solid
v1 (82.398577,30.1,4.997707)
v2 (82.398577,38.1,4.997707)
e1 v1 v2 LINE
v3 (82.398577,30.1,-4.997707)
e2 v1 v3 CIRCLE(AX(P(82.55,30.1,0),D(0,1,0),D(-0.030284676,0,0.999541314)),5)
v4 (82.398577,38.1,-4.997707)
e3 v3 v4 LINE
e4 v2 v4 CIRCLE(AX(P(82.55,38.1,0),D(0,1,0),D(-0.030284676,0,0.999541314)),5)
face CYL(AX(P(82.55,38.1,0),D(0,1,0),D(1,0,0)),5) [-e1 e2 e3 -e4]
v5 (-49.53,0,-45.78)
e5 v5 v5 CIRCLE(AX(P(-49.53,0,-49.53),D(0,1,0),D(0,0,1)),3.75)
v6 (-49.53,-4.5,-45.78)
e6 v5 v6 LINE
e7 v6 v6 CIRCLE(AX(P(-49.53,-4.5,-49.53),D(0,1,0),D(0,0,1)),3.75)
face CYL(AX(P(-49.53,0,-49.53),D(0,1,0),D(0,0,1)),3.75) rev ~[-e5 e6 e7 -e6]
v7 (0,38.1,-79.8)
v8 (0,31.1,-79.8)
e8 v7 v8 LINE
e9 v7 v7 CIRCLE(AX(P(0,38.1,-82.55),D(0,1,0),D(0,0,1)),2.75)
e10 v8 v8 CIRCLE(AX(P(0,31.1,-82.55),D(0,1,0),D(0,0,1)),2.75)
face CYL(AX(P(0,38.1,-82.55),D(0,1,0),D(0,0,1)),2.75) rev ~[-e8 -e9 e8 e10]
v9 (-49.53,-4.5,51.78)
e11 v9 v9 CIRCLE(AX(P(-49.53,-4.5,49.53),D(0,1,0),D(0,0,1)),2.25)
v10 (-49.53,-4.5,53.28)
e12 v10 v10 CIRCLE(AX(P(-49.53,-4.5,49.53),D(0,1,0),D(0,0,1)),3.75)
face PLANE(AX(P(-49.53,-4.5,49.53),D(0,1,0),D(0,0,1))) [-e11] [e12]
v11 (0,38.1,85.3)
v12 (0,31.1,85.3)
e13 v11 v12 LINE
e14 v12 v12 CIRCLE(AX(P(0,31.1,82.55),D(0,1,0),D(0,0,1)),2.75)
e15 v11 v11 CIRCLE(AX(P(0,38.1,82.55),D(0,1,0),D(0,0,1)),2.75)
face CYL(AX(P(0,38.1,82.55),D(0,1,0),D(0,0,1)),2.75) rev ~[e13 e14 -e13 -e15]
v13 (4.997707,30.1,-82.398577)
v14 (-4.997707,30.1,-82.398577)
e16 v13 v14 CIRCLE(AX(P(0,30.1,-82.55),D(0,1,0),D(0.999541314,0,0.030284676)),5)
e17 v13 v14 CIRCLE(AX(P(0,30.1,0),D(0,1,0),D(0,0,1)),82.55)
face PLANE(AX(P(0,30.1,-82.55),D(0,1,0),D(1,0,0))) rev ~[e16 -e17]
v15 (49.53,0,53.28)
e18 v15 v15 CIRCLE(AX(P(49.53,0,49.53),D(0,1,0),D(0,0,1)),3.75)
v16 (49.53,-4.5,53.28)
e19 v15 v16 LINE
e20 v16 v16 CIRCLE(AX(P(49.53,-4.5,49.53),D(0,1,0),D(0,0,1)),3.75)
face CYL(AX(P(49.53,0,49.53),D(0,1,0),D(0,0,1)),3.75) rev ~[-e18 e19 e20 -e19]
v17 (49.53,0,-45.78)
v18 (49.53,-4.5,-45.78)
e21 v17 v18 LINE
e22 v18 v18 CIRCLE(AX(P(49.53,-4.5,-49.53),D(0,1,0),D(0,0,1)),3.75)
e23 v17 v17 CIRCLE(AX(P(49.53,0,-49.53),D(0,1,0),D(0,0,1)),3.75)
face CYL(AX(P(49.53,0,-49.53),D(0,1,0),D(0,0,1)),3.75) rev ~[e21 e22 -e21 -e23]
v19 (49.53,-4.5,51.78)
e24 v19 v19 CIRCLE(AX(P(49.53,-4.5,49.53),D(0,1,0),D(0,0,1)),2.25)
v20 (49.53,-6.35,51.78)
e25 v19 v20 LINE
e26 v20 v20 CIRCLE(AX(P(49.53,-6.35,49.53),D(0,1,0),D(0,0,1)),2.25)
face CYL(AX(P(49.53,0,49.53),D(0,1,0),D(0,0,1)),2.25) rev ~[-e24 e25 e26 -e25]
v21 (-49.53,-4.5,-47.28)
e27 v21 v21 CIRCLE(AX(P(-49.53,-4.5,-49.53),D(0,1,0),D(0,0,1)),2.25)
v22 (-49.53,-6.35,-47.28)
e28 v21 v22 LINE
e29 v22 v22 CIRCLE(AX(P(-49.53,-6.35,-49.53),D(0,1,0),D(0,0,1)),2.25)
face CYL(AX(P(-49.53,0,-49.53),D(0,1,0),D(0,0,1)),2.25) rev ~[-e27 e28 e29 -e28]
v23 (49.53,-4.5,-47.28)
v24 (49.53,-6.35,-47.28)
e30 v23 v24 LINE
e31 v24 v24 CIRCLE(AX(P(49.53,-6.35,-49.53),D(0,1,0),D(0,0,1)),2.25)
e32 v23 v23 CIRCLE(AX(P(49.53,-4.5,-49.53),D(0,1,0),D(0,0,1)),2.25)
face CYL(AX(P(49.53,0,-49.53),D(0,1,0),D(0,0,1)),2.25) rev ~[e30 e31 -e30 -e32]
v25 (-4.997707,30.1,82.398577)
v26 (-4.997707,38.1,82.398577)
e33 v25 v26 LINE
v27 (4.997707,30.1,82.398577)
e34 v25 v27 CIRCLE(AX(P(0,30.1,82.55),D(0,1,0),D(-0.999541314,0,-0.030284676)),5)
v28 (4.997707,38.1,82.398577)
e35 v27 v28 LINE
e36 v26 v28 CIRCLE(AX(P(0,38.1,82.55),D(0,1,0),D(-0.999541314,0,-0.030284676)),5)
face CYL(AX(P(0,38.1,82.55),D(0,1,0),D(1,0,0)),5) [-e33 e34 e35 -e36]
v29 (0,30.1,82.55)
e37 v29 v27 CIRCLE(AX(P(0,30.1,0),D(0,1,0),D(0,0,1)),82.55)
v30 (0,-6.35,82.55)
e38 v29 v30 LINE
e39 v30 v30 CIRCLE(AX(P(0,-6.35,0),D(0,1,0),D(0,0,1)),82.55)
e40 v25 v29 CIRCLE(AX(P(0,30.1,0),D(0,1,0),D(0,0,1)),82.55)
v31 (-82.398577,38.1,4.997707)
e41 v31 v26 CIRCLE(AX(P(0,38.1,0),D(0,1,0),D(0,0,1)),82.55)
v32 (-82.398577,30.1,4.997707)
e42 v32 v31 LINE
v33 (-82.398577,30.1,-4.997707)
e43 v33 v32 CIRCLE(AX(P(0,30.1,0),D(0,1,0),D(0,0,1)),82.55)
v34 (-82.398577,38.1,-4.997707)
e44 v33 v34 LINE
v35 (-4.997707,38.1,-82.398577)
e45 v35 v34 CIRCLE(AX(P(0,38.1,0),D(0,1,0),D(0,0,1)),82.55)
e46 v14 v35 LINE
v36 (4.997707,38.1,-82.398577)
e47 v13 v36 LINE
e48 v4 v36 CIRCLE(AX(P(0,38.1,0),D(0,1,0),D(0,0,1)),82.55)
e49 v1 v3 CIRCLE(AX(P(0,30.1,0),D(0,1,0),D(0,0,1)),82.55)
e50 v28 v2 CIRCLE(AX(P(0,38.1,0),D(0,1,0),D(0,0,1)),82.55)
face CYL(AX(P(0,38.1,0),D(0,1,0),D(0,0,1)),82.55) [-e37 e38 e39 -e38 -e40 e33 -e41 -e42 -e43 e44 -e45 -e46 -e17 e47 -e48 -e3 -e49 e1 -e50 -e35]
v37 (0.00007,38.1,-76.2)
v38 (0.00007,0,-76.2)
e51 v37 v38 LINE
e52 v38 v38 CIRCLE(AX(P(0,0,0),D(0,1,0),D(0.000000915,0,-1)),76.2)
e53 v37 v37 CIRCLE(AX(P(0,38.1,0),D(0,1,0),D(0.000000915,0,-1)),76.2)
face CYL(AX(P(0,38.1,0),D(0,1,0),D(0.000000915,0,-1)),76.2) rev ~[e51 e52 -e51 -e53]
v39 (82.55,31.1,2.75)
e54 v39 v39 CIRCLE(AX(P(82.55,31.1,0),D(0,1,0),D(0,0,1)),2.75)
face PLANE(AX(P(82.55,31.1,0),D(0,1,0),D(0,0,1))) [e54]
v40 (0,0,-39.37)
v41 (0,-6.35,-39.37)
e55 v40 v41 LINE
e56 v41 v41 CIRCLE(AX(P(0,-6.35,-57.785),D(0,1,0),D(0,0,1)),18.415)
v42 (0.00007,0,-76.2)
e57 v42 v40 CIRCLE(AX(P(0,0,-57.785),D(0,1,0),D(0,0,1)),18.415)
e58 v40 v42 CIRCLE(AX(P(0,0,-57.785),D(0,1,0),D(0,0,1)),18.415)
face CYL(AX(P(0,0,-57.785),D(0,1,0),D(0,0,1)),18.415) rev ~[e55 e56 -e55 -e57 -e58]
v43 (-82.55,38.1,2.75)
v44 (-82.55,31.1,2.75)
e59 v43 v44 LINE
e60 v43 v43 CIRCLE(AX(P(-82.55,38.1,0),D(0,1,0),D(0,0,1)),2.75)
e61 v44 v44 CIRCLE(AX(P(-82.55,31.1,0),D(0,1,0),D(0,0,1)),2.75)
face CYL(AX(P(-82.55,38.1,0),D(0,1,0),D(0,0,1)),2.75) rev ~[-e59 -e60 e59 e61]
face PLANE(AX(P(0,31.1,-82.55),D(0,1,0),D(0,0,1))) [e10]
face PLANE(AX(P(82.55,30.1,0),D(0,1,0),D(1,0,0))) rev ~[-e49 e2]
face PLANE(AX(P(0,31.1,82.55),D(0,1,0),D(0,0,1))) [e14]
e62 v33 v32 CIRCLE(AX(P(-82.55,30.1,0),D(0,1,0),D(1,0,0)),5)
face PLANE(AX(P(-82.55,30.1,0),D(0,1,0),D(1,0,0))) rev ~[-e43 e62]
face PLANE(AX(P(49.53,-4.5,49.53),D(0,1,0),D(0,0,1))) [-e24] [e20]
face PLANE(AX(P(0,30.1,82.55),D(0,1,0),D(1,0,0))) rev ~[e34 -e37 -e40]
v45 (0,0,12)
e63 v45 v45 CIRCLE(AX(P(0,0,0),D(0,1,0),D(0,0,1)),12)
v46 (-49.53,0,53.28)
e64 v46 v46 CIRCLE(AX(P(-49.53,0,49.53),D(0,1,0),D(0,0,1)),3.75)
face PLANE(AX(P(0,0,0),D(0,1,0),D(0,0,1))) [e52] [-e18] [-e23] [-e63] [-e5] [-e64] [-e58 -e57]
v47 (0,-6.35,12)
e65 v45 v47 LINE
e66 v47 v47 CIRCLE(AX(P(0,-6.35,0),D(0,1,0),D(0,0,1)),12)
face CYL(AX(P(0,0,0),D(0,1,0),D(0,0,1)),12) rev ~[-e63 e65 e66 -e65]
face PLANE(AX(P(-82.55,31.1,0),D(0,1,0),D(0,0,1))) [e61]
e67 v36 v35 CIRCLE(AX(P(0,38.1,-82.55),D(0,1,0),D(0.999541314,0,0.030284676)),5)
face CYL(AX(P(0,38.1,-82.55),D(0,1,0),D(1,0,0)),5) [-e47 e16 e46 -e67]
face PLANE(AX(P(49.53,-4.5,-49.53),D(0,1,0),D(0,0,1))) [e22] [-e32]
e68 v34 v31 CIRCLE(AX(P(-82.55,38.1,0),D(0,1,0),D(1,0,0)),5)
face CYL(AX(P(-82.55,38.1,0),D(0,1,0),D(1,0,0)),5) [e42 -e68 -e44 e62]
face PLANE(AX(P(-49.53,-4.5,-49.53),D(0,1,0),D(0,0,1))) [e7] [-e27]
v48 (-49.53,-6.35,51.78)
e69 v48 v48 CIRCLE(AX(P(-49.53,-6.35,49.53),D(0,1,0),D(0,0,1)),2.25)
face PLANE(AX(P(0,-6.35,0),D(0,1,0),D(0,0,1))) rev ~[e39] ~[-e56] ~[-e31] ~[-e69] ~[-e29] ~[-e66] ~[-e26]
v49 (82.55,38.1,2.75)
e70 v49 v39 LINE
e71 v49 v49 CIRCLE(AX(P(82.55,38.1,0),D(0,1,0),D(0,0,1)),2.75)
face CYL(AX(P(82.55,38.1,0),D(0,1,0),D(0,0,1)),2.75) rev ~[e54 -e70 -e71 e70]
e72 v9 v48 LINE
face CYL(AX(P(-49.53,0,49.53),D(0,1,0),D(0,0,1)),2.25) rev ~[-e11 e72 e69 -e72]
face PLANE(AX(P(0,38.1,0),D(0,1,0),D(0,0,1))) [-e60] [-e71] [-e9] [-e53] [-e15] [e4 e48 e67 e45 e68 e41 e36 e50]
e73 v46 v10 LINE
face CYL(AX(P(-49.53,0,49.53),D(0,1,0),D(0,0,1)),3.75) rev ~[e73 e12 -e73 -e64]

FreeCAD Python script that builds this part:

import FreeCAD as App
import Part
import Sketcher
Q = App.Units.Quantity

doc = App.newDocument("Part")
body = doc.addObject("PartDesign::Body", "Body")

# Sketch on XZ plane
sketch1 = body.newObject("Sketcher::SketchObject", "Sketch")
sketch1.AttachmentSupport = (doc.getObject("XZ_Plane"), [""])
sketch1.MapMode = "FlatFace"
sketch1.addGeometry(Part.Circle(App.Vector(0, 0, 0), App.Vector(0, 0, 1), 83), False)
sketch1.addGeometry(Part.Circle(App.Vector(0, -58, 0), App.Vector(0, 0, 1), 18), False)
sketch1.addGeometry(Part.Circle(App.Vector(0, 0, 0), App.Vector(0, 0, 1), 12), False)
sketch1.addConstraint(Sketcher.Constraint("Coincident", 0, 3, -1, 1))
sketch1.addConstraint(Sketcher.Constraint("Coincident", 2, 3, -1, 1))
sketch1.addConstraint(Sketcher.Constraint("PointOnObject", 1, 3, -2))
sketch1.addConstraint(Sketcher.Constraint("Diameter", 2, Q("24 mm")))
sketch1.addConstraint(Sketcher.Constraint("Diameter", 0, Q("165.1 mm")))
sketch1.addConstraint(Sketcher.Constraint("Diameter", 1, Q("36.83 mm")))
sketch1.addConstraint(Sketcher.Constraint("DistanceY", 1, 3, -1, 1, Q("57.785 mm")))
pad1 = body.newObject("PartDesign::Pad", "Pad")
pad1.Profile = sketch1
pad1.Length = 6.35

# Sketch on XZ plane
sketch2 = body.newObject("Sketcher::SketchObject", "Sketch001")
sketch2.AttachmentSupport = (doc.getObject("XZ_Plane"), [""])
sketch2.MapMode = "FlatFace"
sketch2.AttachmentOffset = App.Placement(App.Vector(0, 0, -38.1), App.Rotation())
sketch2.addGeometry(Part.Circle(App.Vector(0, 0, 0), App.Vector(0, 0, 1), 83), False)
sketch2.addGeometry(Part.Circle(App.Vector(0, 0, 0), App.Vector(0, 0, 1), 76), False)
sketch2.addConstraint(Sketcher.Constraint("Coincident", 0, 3, -1, 1))
sketch2.addConstraint(Sketcher.Constraint("Coincident", 1, 3, -1, 1))
sketch2.addConstraint(Sketcher.Constraint("Diameter", 0, Q("165.1 mm")))
sketch2.addConstraint(Sketcher.Constraint("Diameter", 1, Q("152.4 mm")))
pad2 = body.newObject("PartDesign::Pad", "Pad001")
pad2.Profile = sketch2
pad2.Length = 38.1

# Sketch on XZ plane
sketch3 = body.newObject("Sketcher::SketchObject", "Sketch002")
sketch3.AttachmentSupport = (doc.getObject("XZ_Plane"), [""])
sketch3.MapMode = "FlatFace"
sketch3.addGeometry(Part.Circle(App.Vector(-49.5, -49.5, 0), App.Vector(0, 0, 1), 3.8), False)
sketch3.addGeometry(Part.Circle(App.Vector(-49.5, -49.5, 0), App.Vector(0, 0, 1), 2.2), False)
sketch3.addGeometry(Part.Circle(App.Vector(49.5, -49.5, 0), App.Vector(0, 0, 1), 3.8), False)
sketch3.addGeometry(Part.Circle(App.Vector(49.5, -49.5, 0), App.Vector(0, 0, 1), 2.2), False)
sketch3.addGeometry(Part.Circle(App.Vector(49.5, 49.5, 0), App.Vector(0, 0, 1), 3.8), False)
sketch3.addGeometry(Part.Circle(App.Vector(49.5, 49.5, 0), App.Vector(0, 0, 1), 2.2), False)
sketch3.addGeometry(Part.Circle(App.Vector(-49.5, 49.5, 0), App.Vector(0, 0, 1), 3.8), False)
sketch3.addGeometry(Part.Circle(App.Vector(-49.5, 49.5, 0), App.Vector(0, 0, 1), 2.2), False)
sketch3.addConstraint(Sketcher.Constraint("Coincident", 1, 3, 0, 3))
sketch3.addConstraint(Sketcher.Constraint("Coincident", 3, 3, 2, 3))
sketch3.addConstraint(Sketcher.Constraint("Coincident", 5, 3, 4, 3))
sketch3.addConstraint(Sketcher.Constraint("Coincident", 7, 3, 6, 3))
sketch3.addConstraint(Sketcher.Constraint("Equal", 0, 2))
sketch3.addConstraint(Sketcher.Constraint("Equal", 1, 3))
sketch3.addConstraint(Sketcher.Constraint("Equal", 2, 4))
sketch3.addConstraint(Sketcher.Constraint("Equal", 3, 5))
sketch3.addConstraint(Sketcher.Constraint("Equal", 4, 6))
sketch3.addConstraint(Sketcher.Constraint("Equal", 5, 7))
sketch3.addConstraint(Sketcher.Constraint("Symmetric", 0, 3, 4, 3, -1, 1))
sketch3.addConstraint(Sketcher.Constraint("Symmetric", 2, 3, 6, 3, -1, 1))
sketch3.addConstraint(Sketcher.Constraint("Symmetric", 0, 3, 2, 3, -2))
sketch3.addConstraint(Sketcher.Constraint("Diameter", 0, Q("7.5 mm")))
sketch3.addConstraint(Sketcher.Constraint("Diameter", 1, Q("4.5 mm")))
sketch3.addConstraint(Sketcher.Constraint("DistanceX", 0, 3, -1, 1, Q("49.53 mm")))
sketch3.addConstraint(Sketcher.Constraint("DistanceY", 0, 3, -1, 1, Q("49.53 mm")))
pocket1 = body.newObject("PartDesign::Pocket", "Pocket")
pocket1.Profile = sketch3
pocket1.Length = 4.5
pocket1.Reversed = True

# Sketch on XZ plane
sketch4 = body.newObject("Sketcher::SketchObject", "Sketch003")
sketch4.AttachmentSupport = (doc.getObject("XZ_Plane"), [""])
sketch4.MapMode = "FlatFace"
sketch4.addGeometry(Part.Circle(App.Vector(-49.5, 49.5, 0), App.Vector(0, 0, 1), 2.2), False)
sketch4.addGeometry(Part.Circle(App.Vector(49.5, 49.5, 0), App.Vector(0, 0, 1), 2.2), False)
sketch4.addGeometry(Part.Circle(App.Vector(49.5, -49.5, 0), App.Vector(0, 0, 1), 2.2), False)
sketch4.addGeometry(Part.Circle(App.Vector(-49.5, -49.5, 0), App.Vector(0, 0, 1), 2.2), False)
sketch4.addConstraint(Sketcher.Constraint("Equal", 0, 1))
sketch4.addConstraint(Sketcher.Constraint("Equal", 1, 2))
sketch4.addConstraint(Sketcher.Constraint("Equal", 2, 3))
sketch4.addConstraint(Sketcher.Constraint("Symmetric", 0, 3, 2, 3, -1, 1))
sketch4.addConstraint(Sketcher.Constraint("Symmetric", 1, 3, 3, 3, -1, 1))
sketch4.addConstraint(Sketcher.Constraint("Symmetric", 0, 3, 1, 3, -2))
sketch4.addConstraint(Sketcher.Constraint("Diameter", 0, Q("4.5 mm")))
sketch4.addConstraint(Sketcher.Constraint("DistanceX", 0, 3, -1, 1, Q("49.53 mm")))
sketch4.addConstraint(Sketcher.Constraint("DistanceY", -1, 1, 0, 3, Q("49.53 mm")))
pocket2 = body.newObject("PartDesign::Pocket", "Pocket001")
pocket2.Profile = sketch4
pocket2.Length = 12.7
pocket2.Reversed = True

# Sketch on XZ plane
sketch5 = body.newObject("Sketcher::SketchObject", "Sketch004")
sketch5.AttachmentSupport = (doc.getObject("XZ_Plane"), [""])
sketch5.MapMode = "FlatFace"
sketch5.AttachmentOffset = App.Placement(App.Vector(0, 0, -38.1), App.Rotation())
sketch5.addGeometry(Part.Circle(App.Vector(-83, 0, 0), App.Vector(0, 0, 1), 5), False)
sketch5.addGeometry(Part.Circle(App.Vector(0, -83, 0), App.Vector(0, 0, 1), 5), False)
sketch5.addGeometry(Part.Circle(App.Vector(83, 0, 0), App.Vector(0, 0, 1), 5), False)
sketch5.addGeometry(Part.Circle(App.Vector(0, 83, 0), App.Vector(0, 0, 1), 5), False)
sketch5.addConstraint(Sketcher.Constraint("Equal", 0, 1))
sketch5.addConstraint(Sketcher.Constraint("Equal", 1, 2))
sketch5.addConstraint(Sketcher.Constraint("Equal", 2, 3))
sketch5.addConstraint(Sketcher.Constraint("Symmetric", 0, 3, 2, 3, -1, 1))
sketch5.addConstraint(Sketcher.Constraint("Symmetric", 1, 3, 3, 3, -1, 1))
sketch5.addConstraint(Sketcher.Constraint("PointOnObject", 0, 3, -1))
sketch5.addConstraint(Sketcher.Constraint("PointOnObject", 1, 3, -2))
sketch5.addConstraint(Sketcher.Constraint("Diameter", 0, Q("10 mm")))
sketch5.addConstraint(Sketcher.Constraint("DistanceX", 0, 3, 2, 3, Q("165.1 mm")))
sketch5.addConstraint(Sketcher.Constraint("DistanceY", 1, 3, 3, 3, Q("165.1 mm")))
pad3 = body.newObject("PartDesign::Pad", "Pad002")
pad3.Profile = sketch5
pad3.Length = 8

# Sketch on XZ plane
sketch6 = body.newObject("Sketcher::SketchObject", "Sketch005")
sketch6.AttachmentSupport = (doc.getObject("XZ_Plane"), [""])
sketch6.MapMode = "FlatFace"
sketch6.AttachmentOffset = App.Placement(App.Vector(0, 0, -38.1), App.Rotation())
sketch6.addGeometry(Part.Circle(App.Vector(-82.5, 0, 0), App.Vector(0, 0, 1), 2.8), False)
sketch6.addGeometry(Part.Circle(App.Vector(0, -82.5, 0), App.Vector(0, 0, 1), 2.8), False)
sketch6.addGeometry(Part.Circle(App.Vector(82.5, 0, 0), App.Vector(0, 0, 1), 2.8), False)
sketch6.addGeometry(Part.Circle(App.Vector(0, 82.5, 0), App.Vector(0, 0, 1), 2.8), False)
sketch6.addConstraint(Sketcher.Constraint("Equal", 0, 1))
sketch6.addConstraint(Sketcher.Constraint("Equal", 1, 2))
sketch6.addConstraint(Sketcher.Constraint("Equal", 2, 3))
sketch6.addConstraint(Sketcher.Constraint("Symmetric", 0, 3, 2, 3, -1, 1))
sketch6.addConstraint(Sketcher.Constraint("Symmetric", 1, 3, 3, 3, -1, 1))
sketch6.addConstraint(Sketcher.Constraint("PointOnObject", 0, 3, -1))
sketch6.addConstraint(Sketcher.Constraint("PointOnObject", 1, 3, -2))
sketch6.addConstraint(Sketcher.Constraint("Diameter", 0, Q("5.5 mm")))
sketch6.addConstraint(Sketcher.Constraint("DistanceX", 0, 3, 2, 3, Q("165.1 mm")))
sketch6.addConstraint(Sketcher.Constraint("DistanceY", 1, 3, 3, 3, Q("165.1 mm")))
pocket3 = body.newObject("PartDesign::Pocket", "Pocket002")
pocket3.Profile = sketch6
pocket3.Length = 7
pocket3.Reversed = True

doc.recompute()
